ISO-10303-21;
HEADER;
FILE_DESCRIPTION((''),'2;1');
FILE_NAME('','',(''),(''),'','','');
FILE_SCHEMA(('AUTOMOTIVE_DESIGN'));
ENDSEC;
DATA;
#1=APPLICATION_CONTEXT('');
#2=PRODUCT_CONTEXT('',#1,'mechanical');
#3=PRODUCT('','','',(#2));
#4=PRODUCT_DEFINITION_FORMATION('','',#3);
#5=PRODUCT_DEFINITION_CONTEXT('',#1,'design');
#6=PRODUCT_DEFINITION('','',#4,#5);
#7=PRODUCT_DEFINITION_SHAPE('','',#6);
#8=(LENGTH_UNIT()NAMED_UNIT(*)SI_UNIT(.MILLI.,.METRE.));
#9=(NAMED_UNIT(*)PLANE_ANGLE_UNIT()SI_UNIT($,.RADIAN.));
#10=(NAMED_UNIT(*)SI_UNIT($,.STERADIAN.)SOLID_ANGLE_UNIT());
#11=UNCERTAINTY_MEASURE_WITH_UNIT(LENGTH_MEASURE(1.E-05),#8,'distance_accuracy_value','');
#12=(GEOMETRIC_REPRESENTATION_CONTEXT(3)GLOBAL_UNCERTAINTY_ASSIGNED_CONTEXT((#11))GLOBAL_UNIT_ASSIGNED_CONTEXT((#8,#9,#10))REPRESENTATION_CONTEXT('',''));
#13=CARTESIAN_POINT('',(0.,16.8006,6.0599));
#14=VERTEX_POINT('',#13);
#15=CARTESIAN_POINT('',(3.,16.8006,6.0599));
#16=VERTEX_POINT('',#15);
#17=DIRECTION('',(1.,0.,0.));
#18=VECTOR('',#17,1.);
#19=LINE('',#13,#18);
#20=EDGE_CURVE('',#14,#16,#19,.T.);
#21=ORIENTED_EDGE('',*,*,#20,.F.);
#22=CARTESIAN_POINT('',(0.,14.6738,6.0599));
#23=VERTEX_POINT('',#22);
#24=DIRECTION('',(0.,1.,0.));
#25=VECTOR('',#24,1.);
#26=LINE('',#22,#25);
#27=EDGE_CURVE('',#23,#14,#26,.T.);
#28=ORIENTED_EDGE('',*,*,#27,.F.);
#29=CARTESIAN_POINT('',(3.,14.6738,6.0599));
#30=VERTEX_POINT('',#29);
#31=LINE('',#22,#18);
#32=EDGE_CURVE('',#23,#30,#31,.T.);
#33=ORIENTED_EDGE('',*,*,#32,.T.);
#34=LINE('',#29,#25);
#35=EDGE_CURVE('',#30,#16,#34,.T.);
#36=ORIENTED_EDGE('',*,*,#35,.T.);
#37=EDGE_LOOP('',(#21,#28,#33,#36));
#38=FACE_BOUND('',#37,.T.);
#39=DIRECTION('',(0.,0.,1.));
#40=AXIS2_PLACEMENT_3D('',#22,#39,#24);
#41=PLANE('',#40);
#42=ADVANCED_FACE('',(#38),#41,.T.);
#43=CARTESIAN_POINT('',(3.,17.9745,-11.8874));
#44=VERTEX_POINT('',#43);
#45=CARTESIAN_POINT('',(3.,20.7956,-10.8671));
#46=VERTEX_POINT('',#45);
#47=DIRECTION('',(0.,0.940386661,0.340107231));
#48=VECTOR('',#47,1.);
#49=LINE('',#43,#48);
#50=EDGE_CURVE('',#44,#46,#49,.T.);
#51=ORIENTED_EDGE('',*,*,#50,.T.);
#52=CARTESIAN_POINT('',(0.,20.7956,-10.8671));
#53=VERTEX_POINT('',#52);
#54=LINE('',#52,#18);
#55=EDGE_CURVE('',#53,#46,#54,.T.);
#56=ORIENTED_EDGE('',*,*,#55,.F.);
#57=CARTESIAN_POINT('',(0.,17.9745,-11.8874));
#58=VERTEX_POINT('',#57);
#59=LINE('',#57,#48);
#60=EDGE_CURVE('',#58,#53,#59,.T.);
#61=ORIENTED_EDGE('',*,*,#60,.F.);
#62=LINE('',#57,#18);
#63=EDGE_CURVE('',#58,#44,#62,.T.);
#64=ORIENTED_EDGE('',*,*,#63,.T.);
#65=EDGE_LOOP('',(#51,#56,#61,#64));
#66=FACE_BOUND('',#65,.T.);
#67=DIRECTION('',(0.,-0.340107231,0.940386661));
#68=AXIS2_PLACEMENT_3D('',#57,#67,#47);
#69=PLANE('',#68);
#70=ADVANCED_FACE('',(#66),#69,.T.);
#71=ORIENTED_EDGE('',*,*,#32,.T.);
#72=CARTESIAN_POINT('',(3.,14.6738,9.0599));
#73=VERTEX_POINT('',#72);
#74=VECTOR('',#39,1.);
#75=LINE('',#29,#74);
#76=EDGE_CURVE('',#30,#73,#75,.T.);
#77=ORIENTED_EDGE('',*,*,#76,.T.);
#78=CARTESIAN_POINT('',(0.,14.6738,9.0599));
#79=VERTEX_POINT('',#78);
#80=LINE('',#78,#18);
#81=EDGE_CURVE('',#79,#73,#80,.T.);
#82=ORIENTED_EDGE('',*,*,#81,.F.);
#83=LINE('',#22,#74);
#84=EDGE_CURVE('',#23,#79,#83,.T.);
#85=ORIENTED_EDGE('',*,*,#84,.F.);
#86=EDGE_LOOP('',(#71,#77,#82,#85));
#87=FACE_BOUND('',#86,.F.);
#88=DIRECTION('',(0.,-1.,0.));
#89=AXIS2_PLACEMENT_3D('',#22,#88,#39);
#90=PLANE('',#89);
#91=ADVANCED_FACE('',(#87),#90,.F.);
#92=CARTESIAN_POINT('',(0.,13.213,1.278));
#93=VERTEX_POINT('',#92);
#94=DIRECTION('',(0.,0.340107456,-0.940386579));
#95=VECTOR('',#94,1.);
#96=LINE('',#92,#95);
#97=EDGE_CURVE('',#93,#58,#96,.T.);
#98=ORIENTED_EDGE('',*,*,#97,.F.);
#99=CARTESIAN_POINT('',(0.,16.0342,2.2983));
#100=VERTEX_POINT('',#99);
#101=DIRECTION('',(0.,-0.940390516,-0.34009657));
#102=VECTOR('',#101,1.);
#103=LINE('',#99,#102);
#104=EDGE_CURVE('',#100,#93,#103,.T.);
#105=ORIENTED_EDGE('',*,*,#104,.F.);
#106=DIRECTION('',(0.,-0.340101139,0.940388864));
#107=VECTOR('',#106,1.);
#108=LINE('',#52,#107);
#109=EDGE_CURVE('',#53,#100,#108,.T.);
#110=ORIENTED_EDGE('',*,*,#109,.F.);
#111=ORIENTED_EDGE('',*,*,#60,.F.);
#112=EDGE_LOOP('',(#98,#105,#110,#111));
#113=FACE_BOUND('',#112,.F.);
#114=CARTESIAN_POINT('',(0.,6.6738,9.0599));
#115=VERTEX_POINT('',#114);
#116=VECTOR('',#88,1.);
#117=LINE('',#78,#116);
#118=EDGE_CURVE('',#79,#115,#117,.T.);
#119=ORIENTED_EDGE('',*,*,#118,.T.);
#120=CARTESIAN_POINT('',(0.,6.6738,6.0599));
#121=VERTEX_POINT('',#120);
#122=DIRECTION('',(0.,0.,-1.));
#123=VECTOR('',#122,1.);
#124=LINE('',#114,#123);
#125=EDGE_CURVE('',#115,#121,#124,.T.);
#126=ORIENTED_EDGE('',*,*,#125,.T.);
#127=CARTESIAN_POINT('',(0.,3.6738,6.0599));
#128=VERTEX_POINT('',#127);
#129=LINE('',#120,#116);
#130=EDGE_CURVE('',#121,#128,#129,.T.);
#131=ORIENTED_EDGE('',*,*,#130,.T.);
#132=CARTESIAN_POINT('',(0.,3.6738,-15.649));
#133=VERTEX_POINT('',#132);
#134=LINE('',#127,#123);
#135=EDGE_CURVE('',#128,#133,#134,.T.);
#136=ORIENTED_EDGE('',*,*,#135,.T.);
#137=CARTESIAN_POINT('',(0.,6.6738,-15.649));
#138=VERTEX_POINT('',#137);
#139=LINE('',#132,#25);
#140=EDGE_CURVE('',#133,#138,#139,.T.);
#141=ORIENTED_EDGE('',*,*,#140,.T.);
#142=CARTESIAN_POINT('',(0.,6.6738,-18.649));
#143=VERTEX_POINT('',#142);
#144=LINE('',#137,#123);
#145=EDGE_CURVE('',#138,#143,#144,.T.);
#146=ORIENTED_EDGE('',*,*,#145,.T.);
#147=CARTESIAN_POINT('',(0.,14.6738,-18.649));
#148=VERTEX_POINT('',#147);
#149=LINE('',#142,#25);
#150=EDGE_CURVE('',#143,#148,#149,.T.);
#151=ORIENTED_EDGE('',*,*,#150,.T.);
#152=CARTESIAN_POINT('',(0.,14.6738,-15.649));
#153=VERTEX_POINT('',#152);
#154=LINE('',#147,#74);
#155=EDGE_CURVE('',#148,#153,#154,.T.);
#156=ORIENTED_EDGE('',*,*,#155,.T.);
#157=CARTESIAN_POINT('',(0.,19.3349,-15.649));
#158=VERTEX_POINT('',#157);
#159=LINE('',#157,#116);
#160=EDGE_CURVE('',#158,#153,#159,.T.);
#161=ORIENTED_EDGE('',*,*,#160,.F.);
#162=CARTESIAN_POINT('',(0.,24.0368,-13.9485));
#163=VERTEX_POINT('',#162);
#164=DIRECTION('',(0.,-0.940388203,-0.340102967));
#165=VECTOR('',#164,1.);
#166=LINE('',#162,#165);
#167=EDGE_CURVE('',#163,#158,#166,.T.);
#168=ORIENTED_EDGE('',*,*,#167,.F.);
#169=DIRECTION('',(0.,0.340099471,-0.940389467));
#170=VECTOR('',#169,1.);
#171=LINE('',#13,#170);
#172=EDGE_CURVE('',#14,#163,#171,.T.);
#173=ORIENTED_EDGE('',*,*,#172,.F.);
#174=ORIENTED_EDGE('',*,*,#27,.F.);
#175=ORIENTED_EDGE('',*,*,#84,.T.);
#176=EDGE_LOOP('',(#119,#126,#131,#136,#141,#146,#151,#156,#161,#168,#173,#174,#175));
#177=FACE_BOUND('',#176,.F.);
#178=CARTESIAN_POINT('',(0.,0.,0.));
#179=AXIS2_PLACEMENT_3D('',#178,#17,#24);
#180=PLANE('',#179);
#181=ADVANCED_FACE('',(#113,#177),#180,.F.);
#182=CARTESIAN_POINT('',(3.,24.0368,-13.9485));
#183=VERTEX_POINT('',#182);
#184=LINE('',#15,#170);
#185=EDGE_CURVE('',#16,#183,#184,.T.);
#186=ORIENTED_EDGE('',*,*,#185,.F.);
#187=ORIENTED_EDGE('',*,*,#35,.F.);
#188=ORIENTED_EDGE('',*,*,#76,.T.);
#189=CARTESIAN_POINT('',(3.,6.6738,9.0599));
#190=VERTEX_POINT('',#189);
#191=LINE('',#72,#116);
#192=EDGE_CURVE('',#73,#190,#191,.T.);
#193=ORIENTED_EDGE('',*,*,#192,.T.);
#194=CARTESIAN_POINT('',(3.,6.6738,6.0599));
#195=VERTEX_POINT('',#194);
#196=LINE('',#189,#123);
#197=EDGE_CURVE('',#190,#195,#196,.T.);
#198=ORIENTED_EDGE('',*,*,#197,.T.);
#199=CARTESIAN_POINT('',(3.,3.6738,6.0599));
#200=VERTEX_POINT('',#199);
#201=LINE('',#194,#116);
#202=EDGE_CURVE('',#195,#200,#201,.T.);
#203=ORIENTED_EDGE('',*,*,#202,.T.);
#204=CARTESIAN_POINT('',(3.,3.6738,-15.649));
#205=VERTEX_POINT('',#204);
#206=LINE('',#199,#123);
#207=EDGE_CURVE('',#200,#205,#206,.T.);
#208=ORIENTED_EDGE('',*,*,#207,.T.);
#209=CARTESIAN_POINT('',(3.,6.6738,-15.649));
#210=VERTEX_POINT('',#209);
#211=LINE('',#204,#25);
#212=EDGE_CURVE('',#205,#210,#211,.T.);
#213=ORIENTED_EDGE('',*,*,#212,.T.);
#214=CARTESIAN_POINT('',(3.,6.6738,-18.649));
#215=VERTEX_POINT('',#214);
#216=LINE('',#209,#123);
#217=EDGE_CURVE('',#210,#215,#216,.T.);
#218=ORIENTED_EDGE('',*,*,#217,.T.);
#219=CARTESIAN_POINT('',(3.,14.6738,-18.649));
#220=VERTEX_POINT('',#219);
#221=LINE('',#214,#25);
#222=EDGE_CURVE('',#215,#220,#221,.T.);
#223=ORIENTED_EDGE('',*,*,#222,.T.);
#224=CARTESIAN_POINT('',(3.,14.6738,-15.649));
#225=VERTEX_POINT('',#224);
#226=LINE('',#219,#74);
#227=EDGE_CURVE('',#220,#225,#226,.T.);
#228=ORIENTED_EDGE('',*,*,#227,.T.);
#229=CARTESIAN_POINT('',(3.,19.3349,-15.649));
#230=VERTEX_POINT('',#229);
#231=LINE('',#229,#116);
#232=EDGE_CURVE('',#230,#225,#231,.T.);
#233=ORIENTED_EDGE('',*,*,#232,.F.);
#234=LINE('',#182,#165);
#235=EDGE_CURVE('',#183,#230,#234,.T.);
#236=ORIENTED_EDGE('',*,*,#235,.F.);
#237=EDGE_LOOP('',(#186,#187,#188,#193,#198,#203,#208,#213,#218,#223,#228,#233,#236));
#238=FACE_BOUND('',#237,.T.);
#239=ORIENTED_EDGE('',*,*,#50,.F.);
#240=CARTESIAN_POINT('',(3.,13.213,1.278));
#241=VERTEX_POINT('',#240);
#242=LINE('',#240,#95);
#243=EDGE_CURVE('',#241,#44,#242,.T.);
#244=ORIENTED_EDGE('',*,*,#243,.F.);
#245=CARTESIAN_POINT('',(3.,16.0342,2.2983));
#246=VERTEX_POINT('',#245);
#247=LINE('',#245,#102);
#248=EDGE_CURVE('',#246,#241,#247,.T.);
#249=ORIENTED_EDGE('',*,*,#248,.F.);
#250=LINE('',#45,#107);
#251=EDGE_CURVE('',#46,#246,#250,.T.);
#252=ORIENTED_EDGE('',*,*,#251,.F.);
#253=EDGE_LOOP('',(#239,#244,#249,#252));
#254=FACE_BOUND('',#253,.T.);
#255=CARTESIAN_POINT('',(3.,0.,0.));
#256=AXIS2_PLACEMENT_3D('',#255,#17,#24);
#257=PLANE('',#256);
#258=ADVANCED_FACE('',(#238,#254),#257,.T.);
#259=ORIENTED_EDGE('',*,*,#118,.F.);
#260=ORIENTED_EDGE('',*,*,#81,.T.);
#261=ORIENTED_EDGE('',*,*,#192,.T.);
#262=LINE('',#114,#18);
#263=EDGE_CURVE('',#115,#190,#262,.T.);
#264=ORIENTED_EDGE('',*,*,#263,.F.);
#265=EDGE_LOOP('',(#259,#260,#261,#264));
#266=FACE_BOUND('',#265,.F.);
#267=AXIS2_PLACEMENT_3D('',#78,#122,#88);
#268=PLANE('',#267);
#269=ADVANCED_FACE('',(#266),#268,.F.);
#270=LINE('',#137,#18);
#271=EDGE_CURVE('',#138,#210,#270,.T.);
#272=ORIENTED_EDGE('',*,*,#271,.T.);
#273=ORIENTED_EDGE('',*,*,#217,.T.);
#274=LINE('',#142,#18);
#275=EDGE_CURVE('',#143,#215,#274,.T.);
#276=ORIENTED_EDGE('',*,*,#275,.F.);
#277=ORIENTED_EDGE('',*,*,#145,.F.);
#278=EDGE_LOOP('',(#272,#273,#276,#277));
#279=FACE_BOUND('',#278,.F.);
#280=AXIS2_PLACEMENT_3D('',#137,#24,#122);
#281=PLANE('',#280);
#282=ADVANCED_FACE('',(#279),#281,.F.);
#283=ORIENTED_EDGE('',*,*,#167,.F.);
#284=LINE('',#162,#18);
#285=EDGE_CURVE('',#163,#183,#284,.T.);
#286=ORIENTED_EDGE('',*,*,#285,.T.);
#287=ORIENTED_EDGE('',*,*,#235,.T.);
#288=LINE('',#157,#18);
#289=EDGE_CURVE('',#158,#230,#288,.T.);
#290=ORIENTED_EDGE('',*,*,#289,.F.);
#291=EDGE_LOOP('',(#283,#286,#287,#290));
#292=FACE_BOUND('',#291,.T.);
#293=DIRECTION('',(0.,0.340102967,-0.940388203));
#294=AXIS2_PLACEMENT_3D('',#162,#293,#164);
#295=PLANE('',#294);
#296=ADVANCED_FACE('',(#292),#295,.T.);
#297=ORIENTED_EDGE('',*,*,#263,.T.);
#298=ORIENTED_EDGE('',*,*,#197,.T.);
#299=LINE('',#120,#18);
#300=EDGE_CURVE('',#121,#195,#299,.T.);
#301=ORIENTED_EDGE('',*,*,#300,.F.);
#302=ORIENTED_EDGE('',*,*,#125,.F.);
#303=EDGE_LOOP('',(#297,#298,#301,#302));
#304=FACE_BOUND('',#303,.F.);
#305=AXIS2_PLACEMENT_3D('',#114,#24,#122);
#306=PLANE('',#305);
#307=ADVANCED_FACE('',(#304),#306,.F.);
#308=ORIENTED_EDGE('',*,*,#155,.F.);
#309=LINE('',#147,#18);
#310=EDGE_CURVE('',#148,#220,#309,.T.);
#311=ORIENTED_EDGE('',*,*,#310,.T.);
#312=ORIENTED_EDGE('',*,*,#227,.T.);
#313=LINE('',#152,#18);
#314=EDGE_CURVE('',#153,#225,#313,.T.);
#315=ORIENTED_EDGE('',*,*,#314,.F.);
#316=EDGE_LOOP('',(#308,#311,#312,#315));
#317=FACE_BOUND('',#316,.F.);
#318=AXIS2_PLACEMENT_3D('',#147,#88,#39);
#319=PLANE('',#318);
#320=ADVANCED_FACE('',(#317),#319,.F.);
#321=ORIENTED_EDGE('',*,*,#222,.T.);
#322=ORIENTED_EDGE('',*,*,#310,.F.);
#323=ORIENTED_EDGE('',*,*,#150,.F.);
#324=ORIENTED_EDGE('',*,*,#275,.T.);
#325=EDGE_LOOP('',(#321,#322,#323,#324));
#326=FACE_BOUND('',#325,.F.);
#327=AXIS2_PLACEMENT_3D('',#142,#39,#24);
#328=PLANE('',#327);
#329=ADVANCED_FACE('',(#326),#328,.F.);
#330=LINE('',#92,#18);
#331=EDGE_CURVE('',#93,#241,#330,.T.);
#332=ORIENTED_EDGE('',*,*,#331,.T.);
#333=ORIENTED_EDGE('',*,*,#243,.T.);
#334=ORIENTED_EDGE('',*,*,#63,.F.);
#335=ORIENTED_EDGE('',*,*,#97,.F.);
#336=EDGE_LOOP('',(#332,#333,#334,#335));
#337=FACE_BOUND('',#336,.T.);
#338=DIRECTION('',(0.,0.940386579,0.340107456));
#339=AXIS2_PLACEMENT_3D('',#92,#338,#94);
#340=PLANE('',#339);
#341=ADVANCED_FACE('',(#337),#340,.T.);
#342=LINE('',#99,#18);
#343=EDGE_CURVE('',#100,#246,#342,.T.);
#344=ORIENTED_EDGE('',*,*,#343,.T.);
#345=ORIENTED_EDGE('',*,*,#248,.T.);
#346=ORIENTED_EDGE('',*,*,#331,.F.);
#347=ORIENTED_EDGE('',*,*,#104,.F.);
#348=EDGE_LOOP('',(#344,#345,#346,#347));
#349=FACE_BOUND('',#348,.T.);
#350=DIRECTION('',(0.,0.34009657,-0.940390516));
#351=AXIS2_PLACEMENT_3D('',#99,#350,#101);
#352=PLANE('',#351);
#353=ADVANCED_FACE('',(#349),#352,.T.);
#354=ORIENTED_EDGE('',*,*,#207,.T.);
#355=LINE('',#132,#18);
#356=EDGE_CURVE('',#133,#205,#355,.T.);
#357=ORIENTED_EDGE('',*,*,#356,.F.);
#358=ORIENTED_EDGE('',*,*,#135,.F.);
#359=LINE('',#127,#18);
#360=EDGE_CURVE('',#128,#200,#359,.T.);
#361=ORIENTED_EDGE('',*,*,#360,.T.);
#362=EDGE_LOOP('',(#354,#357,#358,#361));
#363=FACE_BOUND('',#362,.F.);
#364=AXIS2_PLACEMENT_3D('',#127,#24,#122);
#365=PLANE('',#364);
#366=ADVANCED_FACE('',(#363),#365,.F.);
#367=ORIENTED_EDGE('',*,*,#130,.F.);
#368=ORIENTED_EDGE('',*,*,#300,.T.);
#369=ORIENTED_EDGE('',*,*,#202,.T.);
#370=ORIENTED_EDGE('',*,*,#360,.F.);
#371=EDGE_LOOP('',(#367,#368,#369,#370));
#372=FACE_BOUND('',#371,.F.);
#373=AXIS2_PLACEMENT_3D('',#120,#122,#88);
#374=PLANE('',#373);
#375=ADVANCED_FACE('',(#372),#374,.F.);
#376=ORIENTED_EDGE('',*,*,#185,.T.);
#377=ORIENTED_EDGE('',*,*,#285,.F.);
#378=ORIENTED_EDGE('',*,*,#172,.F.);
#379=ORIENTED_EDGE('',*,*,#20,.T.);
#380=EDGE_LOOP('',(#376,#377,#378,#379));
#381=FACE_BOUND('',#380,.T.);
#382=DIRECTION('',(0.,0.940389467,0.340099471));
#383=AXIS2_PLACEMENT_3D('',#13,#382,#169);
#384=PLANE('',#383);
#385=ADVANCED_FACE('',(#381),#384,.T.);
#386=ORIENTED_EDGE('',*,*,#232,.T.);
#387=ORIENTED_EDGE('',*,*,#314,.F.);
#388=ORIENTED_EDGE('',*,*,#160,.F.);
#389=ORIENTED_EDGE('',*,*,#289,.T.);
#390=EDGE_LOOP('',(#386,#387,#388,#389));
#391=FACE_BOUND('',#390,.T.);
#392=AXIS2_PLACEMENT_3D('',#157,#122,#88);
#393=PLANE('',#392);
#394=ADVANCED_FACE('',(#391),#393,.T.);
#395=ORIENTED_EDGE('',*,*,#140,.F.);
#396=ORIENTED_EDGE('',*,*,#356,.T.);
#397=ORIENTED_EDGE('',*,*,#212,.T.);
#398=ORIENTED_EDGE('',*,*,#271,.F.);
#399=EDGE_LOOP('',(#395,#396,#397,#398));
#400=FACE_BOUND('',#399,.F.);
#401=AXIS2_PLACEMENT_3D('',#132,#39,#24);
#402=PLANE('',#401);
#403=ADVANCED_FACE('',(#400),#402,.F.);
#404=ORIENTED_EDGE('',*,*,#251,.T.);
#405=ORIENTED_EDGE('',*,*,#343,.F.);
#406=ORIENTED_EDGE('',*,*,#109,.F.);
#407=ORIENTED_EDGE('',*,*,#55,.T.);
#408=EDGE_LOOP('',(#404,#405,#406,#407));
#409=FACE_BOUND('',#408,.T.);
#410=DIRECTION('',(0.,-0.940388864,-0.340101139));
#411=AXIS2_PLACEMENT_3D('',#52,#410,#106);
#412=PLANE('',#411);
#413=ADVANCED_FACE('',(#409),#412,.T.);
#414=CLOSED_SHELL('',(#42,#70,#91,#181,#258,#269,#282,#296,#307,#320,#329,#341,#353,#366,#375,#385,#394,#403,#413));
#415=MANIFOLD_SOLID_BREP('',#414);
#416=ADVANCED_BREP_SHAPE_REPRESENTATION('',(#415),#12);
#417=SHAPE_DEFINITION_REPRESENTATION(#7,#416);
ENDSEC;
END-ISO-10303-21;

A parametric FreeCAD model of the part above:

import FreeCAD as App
import Part
import Sketcher

V = App.Vector


def add_polygon(sketch, points):
    """Adds a closed chain of lines whose ends are joined by coincident constraints."""
    first, n = sketch.GeometryCount, len(points)
    for a, b in zip(points, points[1:] + points[:1]):
        sketch.addGeometry(Part.LineSegment(App.Vector(*a, 0), App.Vector(*b, 0)), False)
    for i in range(n):
        sketch.addConstraint(Sketcher.Constraint("Coincident", first + i, 2, first + (i + 1) % n, 1))

doc = App.newDocument("Part")
params = doc.addObject("Spreadsheet::Sheet", "Params")
for row, (alias, value) in enumerate([
    ("sketch1_width", "8 mm"),
    ("sketch1_width2", "3 mm"),
    ("sketch1_length", "5 mm"),
    ("sketch1_length2", "3 mm"),
    ("sketch1_length3", "14 mm"),
    ("pad1_length", "3 mm"),
], start=1):
    params.set(f"A{row}", alias)
    params.set(f"B{row}", "=" + value)
    params.setAlias(f"B{row}", alias)

body = doc.addObject("PartDesign::Body", "Body")

sketch1 = doc.addObject("Sketcher::SketchObject", "Sketch")
body.addObject(sketch1)
sketch1.AttachmentSupport = (doc.YZ_Plane, [""])
sketch1.MapMode = "FlatFace"
add_polygon(sketch1, [(24, -13.9), (16.8, 6.1), (14.7, 6.1), (14.7, 9.1), (6.7, 9.1), (6.7, 6.1), (3.7, 6.1), (3.7, -15.6), (6.7, -15.6), (6.7, -18.6), (14.7, -18.6), (14.7, -15.6), (19.3, -15.6)])
add_polygon(sketch1, [(13.2, 1.3), (16, 2.3), (20.8, -10.9), (18, -11.9)])
sketch1.addConstraint([
    Sketcher.Constraint("Horizontal", 1),
    Sketcher.Constraint("Vertical", 2),
    Sketcher.Constraint("Horizontal", 3),
    Sketcher.Constraint("Vertical", 4),
    Sketcher.Constraint("Horizontal", 5),
    Sketcher.Constraint("Vertical", 6),
    Sketcher.Constraint("Horizontal", 7),
    Sketcher.Constraint("Vertical", 8),
    Sketcher.Constraint("Horizontal", 9),
    Sketcher.Constraint("Vertical", 10),
    Sketcher.Constraint("Horizontal", 11),
    Sketcher.Constraint("Perpendicular", 0, 12),
    Sketcher.Constraint("Parallel", 12, 13),
    Sketcher.Constraint("Perpendicular", 13, 14),
    Sketcher.Constraint("Perpendicular", 14, 15),
    Sketcher.Constraint("Perpendicular", 15, 16),
    Sketcher.Constraint("Horizontal", 1, 2, 4, 2),
    Sketcher.Constraint("Horizontal", 7, 2, 10, 2),
    Sketcher.Constraint("Vertical", 4, 2, 7, 2),
    Sketcher.Constraint("Vertical", 2, 2, 9, 2),
    Sketcher.Constraint("Equal", 7, 2),
    Sketcher.Constraint("Equal", 4, 8),
    Sketcher.Constraint("DistanceX", 3, 2, 3, 1, 8.0),
    Sketcher.Constraint("DistanceX", 5, 2, 5, 1, 3.0),
    Sketcher.Constraint("Distance", 12, 5.0),
    Sketcher.Constraint("Distance", 13, 3.0),
    Sketcher.Constraint("Distance", 14, 14.0),
    Sketcher.Constraint("DistanceY", 6, 2, 6, 1, 21.709),
    Sketcher.Constraint("DistanceX", 11, 1, 11, 2, 4.661),
    Sketcher.Constraint("DistanceY", -1, 1, 0, 2, 6.06),
    Sketcher.Constraint("DistanceX", 1, 2, 1, 1, 2.1268),
    Sketcher.Constraint("DistanceX", -1, 1, 11, 2, 19.335),
    Sketcher.Constraint("DistanceY", 14, 2, -1, 1, 10.867),
    Sketcher.Constraint("DistanceX", -1, 1, 16, 2, 13.213),
])
sketch1.setExpression("Constraints[39]", "Params.sketch1_width")
sketch1.setExpression("Constraints[40]", "Params.sketch1_width2")
sketch1.setExpression("Constraints[41]", "Params.sketch1_length")
sketch1.setExpression("Constraints[42]", "Params.sketch1_length2")
sketch1.setExpression("Constraints[43]", "Params.sketch1_length3")
pad1 = doc.addObject("PartDesign::Pad", "Pad")
body.addObject(pad1)
pad1.Profile = sketch1
pad1.setExpression("Length", "Params.pad1_length")

doc.recompute()
